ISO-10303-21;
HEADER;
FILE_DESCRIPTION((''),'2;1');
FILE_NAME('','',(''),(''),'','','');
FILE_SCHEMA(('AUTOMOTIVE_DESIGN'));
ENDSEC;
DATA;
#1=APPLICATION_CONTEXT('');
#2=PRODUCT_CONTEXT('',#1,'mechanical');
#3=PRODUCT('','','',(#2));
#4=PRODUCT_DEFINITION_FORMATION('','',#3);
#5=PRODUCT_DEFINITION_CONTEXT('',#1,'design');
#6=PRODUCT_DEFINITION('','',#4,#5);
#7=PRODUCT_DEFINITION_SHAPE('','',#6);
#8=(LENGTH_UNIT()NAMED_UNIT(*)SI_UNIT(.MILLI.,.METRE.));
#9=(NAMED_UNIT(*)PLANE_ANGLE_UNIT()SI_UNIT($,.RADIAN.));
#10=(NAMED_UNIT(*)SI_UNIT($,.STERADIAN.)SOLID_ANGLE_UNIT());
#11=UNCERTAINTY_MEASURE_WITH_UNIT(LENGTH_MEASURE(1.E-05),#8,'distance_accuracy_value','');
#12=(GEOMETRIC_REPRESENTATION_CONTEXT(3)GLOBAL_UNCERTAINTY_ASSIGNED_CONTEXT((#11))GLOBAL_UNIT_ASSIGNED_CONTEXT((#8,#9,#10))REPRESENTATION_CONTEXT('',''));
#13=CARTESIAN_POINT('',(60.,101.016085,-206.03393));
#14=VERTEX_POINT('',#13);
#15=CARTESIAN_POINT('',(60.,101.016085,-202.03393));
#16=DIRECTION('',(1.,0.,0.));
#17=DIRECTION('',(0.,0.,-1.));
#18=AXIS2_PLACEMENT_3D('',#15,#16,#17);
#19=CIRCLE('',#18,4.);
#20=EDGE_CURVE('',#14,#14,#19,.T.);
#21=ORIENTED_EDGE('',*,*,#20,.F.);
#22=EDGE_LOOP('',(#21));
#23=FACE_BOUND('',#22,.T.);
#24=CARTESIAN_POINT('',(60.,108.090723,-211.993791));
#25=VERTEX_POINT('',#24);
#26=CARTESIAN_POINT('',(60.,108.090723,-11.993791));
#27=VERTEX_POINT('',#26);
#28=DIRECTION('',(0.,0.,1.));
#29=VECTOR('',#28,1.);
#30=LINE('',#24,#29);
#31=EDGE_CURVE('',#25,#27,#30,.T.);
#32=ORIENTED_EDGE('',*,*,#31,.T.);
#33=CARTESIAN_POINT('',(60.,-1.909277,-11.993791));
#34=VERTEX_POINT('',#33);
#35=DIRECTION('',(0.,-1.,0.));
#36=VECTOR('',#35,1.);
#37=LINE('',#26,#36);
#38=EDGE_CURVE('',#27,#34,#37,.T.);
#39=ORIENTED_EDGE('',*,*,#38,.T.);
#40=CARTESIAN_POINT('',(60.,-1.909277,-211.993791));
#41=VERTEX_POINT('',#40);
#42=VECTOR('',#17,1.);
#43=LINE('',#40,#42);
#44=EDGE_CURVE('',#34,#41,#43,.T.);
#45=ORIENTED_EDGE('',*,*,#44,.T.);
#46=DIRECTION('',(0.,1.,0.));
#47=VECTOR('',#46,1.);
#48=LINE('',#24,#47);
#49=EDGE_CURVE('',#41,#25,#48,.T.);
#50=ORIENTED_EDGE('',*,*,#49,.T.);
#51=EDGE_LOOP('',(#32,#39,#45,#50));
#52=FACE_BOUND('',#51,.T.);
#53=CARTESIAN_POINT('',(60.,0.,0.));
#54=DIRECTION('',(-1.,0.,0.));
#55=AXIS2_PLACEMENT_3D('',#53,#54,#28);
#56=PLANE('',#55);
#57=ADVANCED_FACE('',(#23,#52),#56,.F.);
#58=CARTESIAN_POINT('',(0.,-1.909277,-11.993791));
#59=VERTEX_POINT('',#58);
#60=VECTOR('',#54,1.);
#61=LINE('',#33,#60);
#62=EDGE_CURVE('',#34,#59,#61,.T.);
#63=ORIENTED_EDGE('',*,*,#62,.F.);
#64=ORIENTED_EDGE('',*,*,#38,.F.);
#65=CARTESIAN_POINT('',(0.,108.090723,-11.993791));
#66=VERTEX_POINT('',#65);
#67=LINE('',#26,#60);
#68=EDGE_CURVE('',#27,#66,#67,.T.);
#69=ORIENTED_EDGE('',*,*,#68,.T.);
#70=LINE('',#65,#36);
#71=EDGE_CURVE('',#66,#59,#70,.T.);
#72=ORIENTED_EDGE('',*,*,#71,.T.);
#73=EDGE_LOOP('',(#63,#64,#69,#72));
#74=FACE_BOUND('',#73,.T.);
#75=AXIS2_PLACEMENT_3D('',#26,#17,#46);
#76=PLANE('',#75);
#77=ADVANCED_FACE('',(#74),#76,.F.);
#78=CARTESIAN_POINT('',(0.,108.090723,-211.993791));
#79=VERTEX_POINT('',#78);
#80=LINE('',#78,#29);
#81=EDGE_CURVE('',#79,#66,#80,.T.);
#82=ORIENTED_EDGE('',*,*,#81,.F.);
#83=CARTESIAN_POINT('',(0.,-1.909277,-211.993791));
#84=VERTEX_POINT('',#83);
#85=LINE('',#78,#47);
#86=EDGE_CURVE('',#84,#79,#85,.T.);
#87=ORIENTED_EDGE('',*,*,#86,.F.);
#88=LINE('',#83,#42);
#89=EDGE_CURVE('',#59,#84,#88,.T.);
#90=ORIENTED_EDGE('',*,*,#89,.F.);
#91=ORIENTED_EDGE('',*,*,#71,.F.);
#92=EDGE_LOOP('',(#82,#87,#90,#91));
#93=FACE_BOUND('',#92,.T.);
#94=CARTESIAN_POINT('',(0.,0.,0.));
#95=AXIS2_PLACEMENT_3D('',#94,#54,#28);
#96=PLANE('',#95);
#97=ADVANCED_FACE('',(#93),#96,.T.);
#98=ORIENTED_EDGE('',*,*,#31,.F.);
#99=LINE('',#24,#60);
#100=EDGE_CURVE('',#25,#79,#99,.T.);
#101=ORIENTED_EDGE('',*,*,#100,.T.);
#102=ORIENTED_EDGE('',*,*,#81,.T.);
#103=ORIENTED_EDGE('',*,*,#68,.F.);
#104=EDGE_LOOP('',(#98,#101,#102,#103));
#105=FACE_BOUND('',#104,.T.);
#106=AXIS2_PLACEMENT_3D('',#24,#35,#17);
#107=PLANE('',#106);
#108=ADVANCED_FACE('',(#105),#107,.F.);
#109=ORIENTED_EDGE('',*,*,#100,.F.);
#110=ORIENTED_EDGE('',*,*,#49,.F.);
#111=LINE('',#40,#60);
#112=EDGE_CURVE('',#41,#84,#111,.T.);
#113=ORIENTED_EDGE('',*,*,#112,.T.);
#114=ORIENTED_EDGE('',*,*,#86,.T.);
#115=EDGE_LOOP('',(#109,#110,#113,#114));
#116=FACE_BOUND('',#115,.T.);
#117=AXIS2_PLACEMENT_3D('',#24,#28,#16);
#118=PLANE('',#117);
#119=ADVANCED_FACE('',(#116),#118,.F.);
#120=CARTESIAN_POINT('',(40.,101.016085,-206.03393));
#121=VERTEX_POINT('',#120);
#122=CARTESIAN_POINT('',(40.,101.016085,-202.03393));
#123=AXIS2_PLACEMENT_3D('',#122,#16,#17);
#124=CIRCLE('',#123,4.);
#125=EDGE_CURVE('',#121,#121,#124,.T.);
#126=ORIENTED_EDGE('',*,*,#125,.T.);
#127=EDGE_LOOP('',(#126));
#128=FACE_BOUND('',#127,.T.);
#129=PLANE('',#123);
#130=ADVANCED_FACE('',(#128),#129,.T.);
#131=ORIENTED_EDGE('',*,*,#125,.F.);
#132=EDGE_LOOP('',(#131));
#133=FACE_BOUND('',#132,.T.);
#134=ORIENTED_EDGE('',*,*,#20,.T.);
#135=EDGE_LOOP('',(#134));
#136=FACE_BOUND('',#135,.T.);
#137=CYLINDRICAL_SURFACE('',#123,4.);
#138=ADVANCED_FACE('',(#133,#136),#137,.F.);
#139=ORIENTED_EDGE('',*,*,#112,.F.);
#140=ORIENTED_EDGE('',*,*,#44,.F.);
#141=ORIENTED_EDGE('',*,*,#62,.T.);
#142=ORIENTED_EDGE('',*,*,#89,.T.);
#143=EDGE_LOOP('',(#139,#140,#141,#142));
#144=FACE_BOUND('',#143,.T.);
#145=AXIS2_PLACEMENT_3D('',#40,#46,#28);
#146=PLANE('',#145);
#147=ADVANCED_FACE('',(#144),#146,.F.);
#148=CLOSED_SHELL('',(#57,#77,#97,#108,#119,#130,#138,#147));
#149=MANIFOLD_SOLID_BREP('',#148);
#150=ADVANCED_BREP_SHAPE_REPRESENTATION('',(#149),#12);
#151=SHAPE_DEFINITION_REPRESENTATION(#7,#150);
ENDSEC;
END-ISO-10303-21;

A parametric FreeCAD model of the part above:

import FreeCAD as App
import Part
import Sketcher

V = App.Vector

doc = App.newDocument("Part")
body = doc.addObject("PartDesign::Body", "Body")

# Sketch on YZ plane
sketch1 = body.newObject("Sketcher::SketchObject", "Sketch")
sketch1.AttachmentSupport = (doc.getObject("YZ_Plane"), [""])
sketch1.MapMode = "FlatFace"
sketch1.addGeometry([
    Part.LineSegment(V(108, -12, 0), V(-2, -12, 0)),
    Part.LineSegment(V(-2, -12, 0), V(-2, -212, 0)),
    Part.LineSegment(V(-2, -212, 0), V(108, -212, 0)),
    Part.LineSegment(V(108, -212, 0), V(108, -12, 0)),
], False)
sketch1.addConstraint([
    Sketcher.Constraint("Coincident", 0, 2, 1, 1),
    Sketcher.Constraint("Coincident", 1, 2, 2, 1),
    Sketcher.Constraint("Coincident", 2, 2, 3, 1),
    Sketcher.Constraint("Coincident", 3, 2, 0, 1),
    Sketcher.Constraint("Horizontal", 0),
    Sketcher.Constraint("Vertical", 1),
    Sketcher.Constraint("Horizontal", 2),
    Sketcher.Constraint("Vertical", 3),
    Sketcher.Constraint("DistanceX", 0, 2, 0, 1, 110.0),
    Sketcher.Constraint("DistanceY", 1, 2, 1, 1, 200.0),
    Sketcher.Constraint("DistanceY", 0, 2, -1, 1, 11.993791),
    Sketcher.Constraint("DistanceX", 0, 2, -1, 1, 1.909277),
])
pad1 = body.newObject("PartDesign::Pad", "Pad")
pad1.Profile = sketch1
pad1.Length = 60

# Sketch on YZ plane
sketch2 = body.newObject("Sketcher::SketchObject", "Sketch001")
sketch2.AttachmentSupport = (doc.getObject("YZ_Plane"), [""])
sketch2.MapMode = "FlatFace"
sketch2.AttachmentOffset = App.Placement(V(0, 0, 60), App.Rotation())
sketch2.addGeometry(Part.Circle(V(101, -202, 0), V(0, 0, 1), 4), False)
sketch2.addConstraint([
    Sketcher.Constraint("Diameter", 0, 8.0),
    Sketcher.Constraint("DistanceY", 0, 3, -1, 1, 202.03393),
    Sketcher.Constraint("DistanceX", -1, 1, 0, 3, 101.016085),
])
pocket1 = body.newObject("PartDesign::Pocket", "Pocket")
pocket1.Profile = sketch2
pocket1.Length = 20

doc.recompute()
